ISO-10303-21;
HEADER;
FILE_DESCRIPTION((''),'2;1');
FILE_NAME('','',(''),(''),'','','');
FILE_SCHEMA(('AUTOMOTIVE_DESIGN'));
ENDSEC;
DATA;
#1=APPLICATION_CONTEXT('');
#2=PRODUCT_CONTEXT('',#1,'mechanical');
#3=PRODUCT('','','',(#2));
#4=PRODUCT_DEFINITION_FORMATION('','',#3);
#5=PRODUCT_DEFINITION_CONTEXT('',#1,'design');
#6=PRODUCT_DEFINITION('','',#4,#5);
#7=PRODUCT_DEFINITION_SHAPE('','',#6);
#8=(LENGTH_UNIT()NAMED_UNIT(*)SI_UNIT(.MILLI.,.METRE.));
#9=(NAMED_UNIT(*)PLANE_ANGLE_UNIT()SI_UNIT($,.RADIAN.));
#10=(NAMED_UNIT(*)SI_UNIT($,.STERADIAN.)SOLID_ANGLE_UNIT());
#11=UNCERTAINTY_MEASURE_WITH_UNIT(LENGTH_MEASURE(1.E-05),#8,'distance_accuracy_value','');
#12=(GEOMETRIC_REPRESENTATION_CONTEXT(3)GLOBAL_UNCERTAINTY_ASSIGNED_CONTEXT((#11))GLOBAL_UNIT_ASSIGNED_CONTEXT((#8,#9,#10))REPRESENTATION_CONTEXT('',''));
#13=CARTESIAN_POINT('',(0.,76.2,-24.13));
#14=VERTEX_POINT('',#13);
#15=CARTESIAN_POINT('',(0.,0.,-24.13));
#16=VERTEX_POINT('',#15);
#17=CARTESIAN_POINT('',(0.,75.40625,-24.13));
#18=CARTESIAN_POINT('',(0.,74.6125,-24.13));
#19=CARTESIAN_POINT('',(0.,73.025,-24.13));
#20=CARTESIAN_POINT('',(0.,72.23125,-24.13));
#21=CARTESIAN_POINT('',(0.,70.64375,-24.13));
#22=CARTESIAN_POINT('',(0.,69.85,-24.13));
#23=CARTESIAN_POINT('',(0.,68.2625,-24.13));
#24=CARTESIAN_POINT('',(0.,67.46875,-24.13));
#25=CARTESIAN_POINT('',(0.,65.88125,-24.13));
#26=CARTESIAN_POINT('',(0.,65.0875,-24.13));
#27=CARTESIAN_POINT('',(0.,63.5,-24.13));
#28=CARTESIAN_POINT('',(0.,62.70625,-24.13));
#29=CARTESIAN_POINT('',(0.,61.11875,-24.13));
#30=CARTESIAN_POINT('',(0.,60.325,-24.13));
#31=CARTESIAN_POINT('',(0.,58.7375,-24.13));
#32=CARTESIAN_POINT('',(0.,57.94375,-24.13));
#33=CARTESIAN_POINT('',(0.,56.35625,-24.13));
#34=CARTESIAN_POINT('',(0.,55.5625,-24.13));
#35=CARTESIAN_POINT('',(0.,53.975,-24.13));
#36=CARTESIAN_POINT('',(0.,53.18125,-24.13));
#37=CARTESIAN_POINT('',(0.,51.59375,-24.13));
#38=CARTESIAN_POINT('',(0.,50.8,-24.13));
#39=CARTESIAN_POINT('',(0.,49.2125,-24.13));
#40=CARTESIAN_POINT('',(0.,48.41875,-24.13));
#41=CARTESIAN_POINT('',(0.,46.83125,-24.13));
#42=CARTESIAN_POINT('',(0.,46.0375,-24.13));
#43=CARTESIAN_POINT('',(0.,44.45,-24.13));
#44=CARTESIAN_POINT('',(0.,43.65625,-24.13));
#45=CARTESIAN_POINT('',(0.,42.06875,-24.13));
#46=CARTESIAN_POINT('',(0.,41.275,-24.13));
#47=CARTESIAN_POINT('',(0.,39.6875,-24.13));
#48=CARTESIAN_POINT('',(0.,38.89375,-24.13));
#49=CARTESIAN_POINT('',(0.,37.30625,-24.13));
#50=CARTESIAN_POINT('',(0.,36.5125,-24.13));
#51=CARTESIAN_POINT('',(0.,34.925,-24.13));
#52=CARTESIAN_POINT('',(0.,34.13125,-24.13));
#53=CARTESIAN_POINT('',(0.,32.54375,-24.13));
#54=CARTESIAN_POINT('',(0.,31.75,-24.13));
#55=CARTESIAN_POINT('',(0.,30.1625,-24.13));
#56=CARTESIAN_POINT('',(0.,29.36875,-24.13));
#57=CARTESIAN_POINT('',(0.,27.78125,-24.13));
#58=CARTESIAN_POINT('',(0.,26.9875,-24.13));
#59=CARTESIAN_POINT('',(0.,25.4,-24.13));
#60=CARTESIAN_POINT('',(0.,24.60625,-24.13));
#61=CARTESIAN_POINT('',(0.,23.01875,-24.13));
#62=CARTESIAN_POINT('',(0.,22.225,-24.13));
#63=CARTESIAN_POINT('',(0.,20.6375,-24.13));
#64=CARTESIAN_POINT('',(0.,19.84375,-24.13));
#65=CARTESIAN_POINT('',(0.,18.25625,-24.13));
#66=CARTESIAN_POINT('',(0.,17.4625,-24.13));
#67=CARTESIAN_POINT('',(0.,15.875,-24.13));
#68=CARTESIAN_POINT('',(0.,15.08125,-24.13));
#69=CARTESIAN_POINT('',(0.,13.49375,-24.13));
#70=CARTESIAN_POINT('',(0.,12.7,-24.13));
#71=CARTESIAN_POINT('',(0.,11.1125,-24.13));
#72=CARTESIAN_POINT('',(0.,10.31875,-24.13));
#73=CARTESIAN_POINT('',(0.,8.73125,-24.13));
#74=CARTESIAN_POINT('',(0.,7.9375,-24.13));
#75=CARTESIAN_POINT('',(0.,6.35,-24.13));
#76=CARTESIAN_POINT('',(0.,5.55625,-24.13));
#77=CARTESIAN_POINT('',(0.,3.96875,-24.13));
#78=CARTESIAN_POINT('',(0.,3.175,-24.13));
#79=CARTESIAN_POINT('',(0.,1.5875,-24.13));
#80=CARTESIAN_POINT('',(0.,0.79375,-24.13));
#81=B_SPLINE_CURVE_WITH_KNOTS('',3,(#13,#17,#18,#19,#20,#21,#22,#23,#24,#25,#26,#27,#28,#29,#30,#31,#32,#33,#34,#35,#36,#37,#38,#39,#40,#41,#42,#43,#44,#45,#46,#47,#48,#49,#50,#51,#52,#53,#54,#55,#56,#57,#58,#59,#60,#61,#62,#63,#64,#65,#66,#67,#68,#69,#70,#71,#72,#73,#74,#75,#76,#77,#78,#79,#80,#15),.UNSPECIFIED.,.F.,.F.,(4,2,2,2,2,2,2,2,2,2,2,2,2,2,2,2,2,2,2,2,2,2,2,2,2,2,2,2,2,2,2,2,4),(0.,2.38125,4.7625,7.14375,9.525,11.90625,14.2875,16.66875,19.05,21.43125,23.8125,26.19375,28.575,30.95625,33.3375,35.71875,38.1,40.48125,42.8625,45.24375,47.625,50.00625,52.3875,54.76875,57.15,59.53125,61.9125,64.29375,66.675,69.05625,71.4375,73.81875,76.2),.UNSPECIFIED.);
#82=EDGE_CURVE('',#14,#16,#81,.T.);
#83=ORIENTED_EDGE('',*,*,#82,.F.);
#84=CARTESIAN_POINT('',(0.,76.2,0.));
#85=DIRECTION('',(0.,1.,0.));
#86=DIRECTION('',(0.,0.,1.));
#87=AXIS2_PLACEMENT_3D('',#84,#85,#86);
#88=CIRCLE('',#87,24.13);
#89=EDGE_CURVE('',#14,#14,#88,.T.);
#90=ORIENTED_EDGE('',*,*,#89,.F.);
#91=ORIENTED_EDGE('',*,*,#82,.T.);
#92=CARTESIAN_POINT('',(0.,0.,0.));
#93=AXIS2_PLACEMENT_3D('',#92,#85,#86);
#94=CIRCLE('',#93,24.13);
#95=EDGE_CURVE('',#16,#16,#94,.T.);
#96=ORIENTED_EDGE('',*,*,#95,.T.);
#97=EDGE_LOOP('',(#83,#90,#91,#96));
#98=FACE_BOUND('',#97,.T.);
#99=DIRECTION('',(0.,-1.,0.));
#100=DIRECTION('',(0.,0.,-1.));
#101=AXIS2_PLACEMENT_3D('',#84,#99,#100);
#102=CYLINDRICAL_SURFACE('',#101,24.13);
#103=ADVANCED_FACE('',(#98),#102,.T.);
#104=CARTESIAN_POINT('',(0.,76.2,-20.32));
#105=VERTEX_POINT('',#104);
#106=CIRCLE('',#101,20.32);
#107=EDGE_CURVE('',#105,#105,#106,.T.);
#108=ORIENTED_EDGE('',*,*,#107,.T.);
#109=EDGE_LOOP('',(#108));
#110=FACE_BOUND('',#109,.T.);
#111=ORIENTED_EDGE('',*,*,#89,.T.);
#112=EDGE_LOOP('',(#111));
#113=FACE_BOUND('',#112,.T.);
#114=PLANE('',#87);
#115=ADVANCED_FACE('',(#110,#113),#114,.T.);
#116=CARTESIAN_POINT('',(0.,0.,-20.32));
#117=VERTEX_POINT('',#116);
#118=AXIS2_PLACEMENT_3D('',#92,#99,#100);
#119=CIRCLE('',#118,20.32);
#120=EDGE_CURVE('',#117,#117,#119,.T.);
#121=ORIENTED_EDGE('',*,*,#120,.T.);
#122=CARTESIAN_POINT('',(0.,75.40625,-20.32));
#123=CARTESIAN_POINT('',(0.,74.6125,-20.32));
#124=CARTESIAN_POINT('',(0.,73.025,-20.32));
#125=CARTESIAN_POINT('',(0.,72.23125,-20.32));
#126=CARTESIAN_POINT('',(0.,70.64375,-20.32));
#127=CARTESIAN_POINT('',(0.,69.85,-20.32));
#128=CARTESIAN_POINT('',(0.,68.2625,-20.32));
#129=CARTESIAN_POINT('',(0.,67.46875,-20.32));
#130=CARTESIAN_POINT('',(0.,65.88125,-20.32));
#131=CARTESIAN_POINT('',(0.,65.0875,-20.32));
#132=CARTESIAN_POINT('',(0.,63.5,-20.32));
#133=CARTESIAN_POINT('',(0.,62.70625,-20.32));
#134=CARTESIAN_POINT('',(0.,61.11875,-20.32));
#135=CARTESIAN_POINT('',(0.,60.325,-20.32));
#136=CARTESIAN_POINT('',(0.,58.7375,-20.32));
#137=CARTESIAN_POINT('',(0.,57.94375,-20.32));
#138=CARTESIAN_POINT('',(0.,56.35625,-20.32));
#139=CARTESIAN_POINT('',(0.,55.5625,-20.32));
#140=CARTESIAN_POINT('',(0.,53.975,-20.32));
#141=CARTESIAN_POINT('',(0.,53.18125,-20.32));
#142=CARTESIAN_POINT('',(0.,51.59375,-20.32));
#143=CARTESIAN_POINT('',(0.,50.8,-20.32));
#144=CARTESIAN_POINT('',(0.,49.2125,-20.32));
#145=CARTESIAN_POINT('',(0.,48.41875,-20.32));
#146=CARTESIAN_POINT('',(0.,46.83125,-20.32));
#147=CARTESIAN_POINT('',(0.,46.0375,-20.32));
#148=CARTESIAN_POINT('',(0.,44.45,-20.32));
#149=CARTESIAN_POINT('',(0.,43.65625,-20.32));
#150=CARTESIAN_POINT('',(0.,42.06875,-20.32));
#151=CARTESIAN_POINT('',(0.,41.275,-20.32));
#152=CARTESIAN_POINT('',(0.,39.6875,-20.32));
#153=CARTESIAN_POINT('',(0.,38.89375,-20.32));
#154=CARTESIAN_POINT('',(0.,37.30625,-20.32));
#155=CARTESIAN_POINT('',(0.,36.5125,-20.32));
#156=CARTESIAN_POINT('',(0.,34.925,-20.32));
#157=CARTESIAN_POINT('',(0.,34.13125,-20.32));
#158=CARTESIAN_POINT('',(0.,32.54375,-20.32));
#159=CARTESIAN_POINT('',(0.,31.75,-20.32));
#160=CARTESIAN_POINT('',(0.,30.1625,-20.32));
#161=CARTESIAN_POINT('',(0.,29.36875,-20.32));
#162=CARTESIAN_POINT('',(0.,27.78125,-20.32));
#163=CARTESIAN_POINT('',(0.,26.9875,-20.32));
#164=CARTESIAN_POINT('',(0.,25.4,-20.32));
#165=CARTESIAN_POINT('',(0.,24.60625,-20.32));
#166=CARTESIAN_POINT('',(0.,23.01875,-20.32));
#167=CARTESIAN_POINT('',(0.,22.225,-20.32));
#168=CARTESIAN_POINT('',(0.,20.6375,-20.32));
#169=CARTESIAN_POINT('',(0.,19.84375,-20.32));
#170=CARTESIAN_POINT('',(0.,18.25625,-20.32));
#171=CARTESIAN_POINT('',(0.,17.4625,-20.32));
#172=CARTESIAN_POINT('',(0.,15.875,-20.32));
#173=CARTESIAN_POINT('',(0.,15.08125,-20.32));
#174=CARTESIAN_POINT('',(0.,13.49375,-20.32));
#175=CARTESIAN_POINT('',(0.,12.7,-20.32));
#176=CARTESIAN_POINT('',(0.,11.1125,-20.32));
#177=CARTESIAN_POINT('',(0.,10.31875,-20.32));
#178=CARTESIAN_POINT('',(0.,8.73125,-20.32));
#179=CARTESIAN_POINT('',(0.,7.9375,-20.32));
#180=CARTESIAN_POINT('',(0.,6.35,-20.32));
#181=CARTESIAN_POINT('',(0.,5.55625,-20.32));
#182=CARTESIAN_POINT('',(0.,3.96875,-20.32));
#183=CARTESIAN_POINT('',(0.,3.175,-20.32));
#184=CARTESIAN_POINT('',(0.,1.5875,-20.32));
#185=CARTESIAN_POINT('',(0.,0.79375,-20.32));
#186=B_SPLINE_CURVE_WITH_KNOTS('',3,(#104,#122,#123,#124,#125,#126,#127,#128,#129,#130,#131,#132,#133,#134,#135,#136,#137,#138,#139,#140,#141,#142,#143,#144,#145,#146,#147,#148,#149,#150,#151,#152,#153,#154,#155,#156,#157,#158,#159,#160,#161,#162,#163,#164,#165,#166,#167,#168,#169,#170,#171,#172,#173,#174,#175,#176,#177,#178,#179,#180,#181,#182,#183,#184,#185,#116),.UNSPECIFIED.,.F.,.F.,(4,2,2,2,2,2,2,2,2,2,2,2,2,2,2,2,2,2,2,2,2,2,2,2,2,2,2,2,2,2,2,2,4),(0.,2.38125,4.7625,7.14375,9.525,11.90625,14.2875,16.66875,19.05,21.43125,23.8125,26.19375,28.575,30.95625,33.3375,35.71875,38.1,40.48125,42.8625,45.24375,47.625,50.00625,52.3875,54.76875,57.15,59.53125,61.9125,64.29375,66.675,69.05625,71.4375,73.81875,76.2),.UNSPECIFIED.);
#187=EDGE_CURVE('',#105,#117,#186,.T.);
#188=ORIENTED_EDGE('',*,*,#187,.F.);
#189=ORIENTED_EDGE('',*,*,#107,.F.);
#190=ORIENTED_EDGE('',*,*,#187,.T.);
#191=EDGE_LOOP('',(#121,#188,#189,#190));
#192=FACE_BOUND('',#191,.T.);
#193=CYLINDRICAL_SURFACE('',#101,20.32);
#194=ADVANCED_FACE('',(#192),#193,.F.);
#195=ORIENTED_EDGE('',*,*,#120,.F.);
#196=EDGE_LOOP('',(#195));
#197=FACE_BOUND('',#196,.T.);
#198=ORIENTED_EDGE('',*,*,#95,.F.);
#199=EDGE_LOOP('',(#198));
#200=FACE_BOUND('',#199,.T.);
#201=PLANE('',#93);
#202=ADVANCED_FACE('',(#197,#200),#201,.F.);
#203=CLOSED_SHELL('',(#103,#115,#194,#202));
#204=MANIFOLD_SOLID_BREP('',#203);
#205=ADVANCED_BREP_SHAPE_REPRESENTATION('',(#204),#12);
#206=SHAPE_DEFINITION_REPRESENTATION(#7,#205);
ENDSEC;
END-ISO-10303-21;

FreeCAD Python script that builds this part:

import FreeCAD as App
import Part
import Sketcher

V = App.Vector
Q = App.Units.Quantity

doc = App.newDocument("Part")
body = doc.addObject("PartDesign::Body", "Body")

sketch1 = body.newObject("Sketcher::SketchObject", "Sketch")
sketch1.AttachmentSupport = (doc.getObject("XZ_Plane"), [""])
sketch1.MapMode = "FlatFace"
sketch1.addGeometry(Part.Circle(V(0, 0, 0), V(0, 0, 1), 24), False)
sketch1.addConstraint([
    Sketcher.Constraint("Coincident", 0, 3, -1, 1),
    Sketcher.Constraint("Diameter", 0, Q("1.9 in")),
])
pad1 = body.newObject("PartDesign::Pad", "Pad")
pad1.Profile = sketch1
pad1.Length = Q("3 in")
pad1.Reversed = True

sketch2 = body.newObject("Sketcher::SketchObject", "Sketch001")
sketch2.AttachmentSupport = (doc.getObject("XZ_Plane"), [""])
sketch2.MapMode = "FlatFace"
sketch2.addGeometry(Part.Circle(V(0, 0, 0), V(0, 0, 1), 20), False)
sketch2.addConstraint([
    Sketcher.Constraint("Coincident", 0, 3, -1, 1),
    Sketcher.Constraint("Diameter", 0, Q("1.6 in")),
])
pocket1 = body.newObject("PartDesign::Pocket", "Pocket")
pocket1.Profile = sketch2
pocket1.Type = "ThroughAll"

doc.recompute()
